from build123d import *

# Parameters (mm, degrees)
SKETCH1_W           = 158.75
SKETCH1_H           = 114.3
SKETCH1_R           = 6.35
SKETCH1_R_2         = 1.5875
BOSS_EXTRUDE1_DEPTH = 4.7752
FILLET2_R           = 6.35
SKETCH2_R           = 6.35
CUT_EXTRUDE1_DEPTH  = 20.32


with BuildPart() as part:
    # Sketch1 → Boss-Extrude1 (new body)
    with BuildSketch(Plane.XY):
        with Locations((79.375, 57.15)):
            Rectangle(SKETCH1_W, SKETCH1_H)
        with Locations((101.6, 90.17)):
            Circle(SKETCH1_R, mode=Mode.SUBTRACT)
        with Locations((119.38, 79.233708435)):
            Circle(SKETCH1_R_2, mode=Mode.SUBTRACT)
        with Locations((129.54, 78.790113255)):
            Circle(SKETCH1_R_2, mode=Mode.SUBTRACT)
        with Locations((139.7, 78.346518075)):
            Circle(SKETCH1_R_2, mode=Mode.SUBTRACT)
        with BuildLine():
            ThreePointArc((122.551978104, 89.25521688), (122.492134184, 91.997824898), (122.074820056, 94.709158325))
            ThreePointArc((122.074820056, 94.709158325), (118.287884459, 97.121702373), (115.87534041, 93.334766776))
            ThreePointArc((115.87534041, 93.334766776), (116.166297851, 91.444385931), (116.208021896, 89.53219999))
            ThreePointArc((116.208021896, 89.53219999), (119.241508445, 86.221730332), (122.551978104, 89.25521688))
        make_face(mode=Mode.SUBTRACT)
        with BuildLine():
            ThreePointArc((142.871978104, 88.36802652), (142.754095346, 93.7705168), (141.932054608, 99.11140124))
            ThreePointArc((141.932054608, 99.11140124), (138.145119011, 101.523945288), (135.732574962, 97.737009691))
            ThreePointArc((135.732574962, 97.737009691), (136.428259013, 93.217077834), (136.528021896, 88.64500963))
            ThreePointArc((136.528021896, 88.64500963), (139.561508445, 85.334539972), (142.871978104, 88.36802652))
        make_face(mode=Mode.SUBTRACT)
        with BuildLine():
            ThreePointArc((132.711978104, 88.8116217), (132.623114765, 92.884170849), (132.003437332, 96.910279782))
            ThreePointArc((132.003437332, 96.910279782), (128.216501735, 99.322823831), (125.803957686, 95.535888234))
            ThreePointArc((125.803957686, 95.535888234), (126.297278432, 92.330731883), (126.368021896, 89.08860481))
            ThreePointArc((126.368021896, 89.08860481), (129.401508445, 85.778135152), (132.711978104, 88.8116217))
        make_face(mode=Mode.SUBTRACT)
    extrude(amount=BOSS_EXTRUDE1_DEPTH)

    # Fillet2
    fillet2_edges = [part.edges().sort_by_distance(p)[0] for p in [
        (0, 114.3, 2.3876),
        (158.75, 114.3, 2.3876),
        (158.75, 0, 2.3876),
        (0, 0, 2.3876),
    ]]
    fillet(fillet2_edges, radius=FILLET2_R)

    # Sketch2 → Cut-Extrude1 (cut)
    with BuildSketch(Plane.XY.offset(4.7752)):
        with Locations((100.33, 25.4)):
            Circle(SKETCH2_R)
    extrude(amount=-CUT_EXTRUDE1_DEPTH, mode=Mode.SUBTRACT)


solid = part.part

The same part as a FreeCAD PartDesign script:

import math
import FreeCAD as App
import Part
import Sketcher
from FreeCAD import Vector
Q = App.Units.Quantity


def edges_at(feature, points):
    """Names of the edges that pass closest to the given points."""
    edges = feature.Shape.Edges
    near = lambda p: min(range(len(edges)), key=lambda i: edges[i].distToShape(Part.Vertex(*p))[0])
    return sorted({f"Edge{near(p) + 1}" for p in points})


def add_polygon(sketch, points):
    """Adds a closed chain of lines whose ends are joined by coincident constraints."""
    first, n = sketch.GeometryCount, len(points)
    for a, b in zip(points, points[1:] + points[:1]):
        sketch.addGeometry(Part.LineSegment(App.Vector(*a, 0), App.Vector(*b, 0)), False)
    for i in range(n):
        sketch.addConstraint(Sketcher.Constraint("Coincident", first + i, 2, first + (i + 1) % n, 1))

doc = App.newDocument("Part")
body = doc.addObject("PartDesign::Body", "Body")

# Sketch on XY plane
sketch1 = body.newObject("Sketcher::SketchObject", "Sketch")
sketch1.AttachmentSupport = (doc.getObject("XY_Plane"), [""])
sketch1.MapMode = "FlatFace"
add_polygon(sketch1, [(0, 114.3), (0, 0), (158.8, 0), (158.8, 114.3)])  # lines 0-3
sketch1.addGeometry(Part.Circle(Vector(119.4, 79.2, 0), Vector(0, 0, 1), 1.6), False)  # 4
sketch1.addGeometry(Part.Circle(Vector(129.5, 78.8, 0), Vector(0, 0, 1), 1.6), False)  # 5
sketch1.addGeometry(Part.Circle(Vector(139.7, 78.3, 0), Vector(0, 0, 1), 1.6), False)  # 6
sketch1.addGeometry(Part.Circle(Vector(101.6, 90.2, 0), Vector(0, 0, 1), 6.3), False)  # 7
sketch1.addGeometry(Part.ArcOfCircle(Part.Circle(Vector(101.6, 90.2, 0), Vector(0, 0, 1), 21), math.radians(-2.5), math.radians(12.5)), False)  # 8
sketch1.addGeometry(Part.ArcOfCircle(Part.Circle(Vector(119.4, 89.4, 0), Vector(0, 0, 1), 3.2), math.radians(178), math.radians(357)), False)  # 9
sketch1.addGeometry(Part.ArcOfCircle(Part.Circle(Vector(101.6, 90.2, 0), Vector(0, 0, 1), 14.6), math.radians(-2.5), math.radians(12.5)), False)  # 10
sketch1.addGeometry(Part.ArcOfCircle(Part.Circle(Vector(119, 94, 0), Vector(0, 0, 1), 3.2), math.radians(13), math.radians(192)), False)  # 11
sketch1.addGeometry(Part.ArcOfCircle(Part.Circle(Vector(101.6, 90.2, 0), Vector(0, 0, 1), 31.1), math.radians(-2.5), math.radians(12.5)), False)  # 12
sketch1.addGeometry(Part.ArcOfCircle(Part.Circle(Vector(129.5, 89, 0), Vector(0, 0, 1), 3.2), math.radians(178), math.radians(357)), False)  # 13
sketch1.addGeometry(Part.ArcOfCircle(Part.Circle(Vector(101.6, 90.2, 0), Vector(0, 0, 1), 24.8), math.radians(-2.5), math.radians(12.5)), False)  # 14
sketch1.addGeometry(Part.ArcOfCircle(Part.Circle(Vector(128.9, 96.2, 0), Vector(0, 0, 1), 3.2), math.radians(12), math.radians(192)), False)  # 15
sketch1.addGeometry(Part.ArcOfCircle(Part.Circle(Vector(101.6, 90.2, 0), Vector(0, 0, 1), 41.3), math.radians(-2.5), math.radians(12.5)), False)  # 16
sketch1.addGeometry(Part.ArcOfCircle(Part.Circle(Vector(139.7, 88.5, 0), Vector(0, 0, 1), 3.2), math.radians(178), math.radians(357)), False)  # 17
sketch1.addGeometry(Part.ArcOfCircle(Part.Circle(Vector(101.6, 90.2, 0), Vector(0, 0, 1), 35), math.radians(-2.5), math.radians(12.5)), False)  # 18
sketch1.addGeometry(Part.ArcOfCircle(Part.Circle(Vector(138.8, 98.4, 0), Vector(0, 0, 1), 3.2), math.radians(13), math.radians(192)), False)  # 19
sketch1.addConstraint([
    Sketcher.Constraint("Tangent", 8, 1, 9, 2),
    Sketcher.Constraint("Tangent", 9, 1, 10, 1),
    Sketcher.Constraint("Tangent", 10, 2, 11, 2),
    Sketcher.Constraint("Tangent", 11, 1, 8, 2),
    Sketcher.Constraint("Tangent", 12, 1, 13, 2),
    Sketcher.Constraint("Tangent", 13, 1, 14, 1),
    Sketcher.Constraint("Tangent", 14, 2, 15, 2),
    Sketcher.Constraint("Tangent", 15, 1, 12, 2),
    Sketcher.Constraint("Tangent", 16, 1, 17, 2),
    Sketcher.Constraint("Tangent", 17, 1, 18, 1),
    Sketcher.Constraint("Tangent", 18, 2, 19, 2),
    Sketcher.Constraint("Tangent", 19, 1, 16, 2),
    Sketcher.Constraint("Vertical", 0),
    Sketcher.Constraint("Horizontal", 1),
    Sketcher.Constraint("Vertical", 2),
    Sketcher.Constraint("Horizontal", 3),
    Sketcher.Constraint("Coincident", 0, 2, -1, 1),
    Sketcher.Constraint("Coincident", 8, 3, 7, 3),
    Sketcher.Constraint("Coincident", 10, 3, 7, 3),
    Sketcher.Constraint("Coincident", 12, 3, 7, 3),
    Sketcher.Constraint("Coincident", 14, 3, 7, 3),
    Sketcher.Constraint("Coincident", 16, 3, 7, 3),
    Sketcher.Constraint("Coincident", 18, 3, 7, 3),
    Sketcher.Constraint("Equal", 4, 5),
    Sketcher.Constraint("Equal", 5, 6),
    Sketcher.Constraint("Equal", 11, 13),
    Sketcher.Constraint("Equal", 15, 17),
    Sketcher.Constraint("Vertical", 4, 3, 9, 3),
    Sketcher.Constraint("Vertical", 5, 3, 13, 3),
    Sketcher.Constraint("Vertical", 6, 3, 17, 3),
    Sketcher.Constraint("Diameter", 7, Q("0.5 in")),
    Sketcher.Constraint("Diameter", 4, Q("0.125 in")),
    Sketcher.Constraint("DistanceY", 0, 2, 0, 1, Q("4.5 in")),
    Sketcher.Constraint("DistanceX", -1, 1, 7, 3, Q("4 in")),
    Sketcher.Constraint("Radius", 9, Q("0.125 in")),
    Sketcher.Constraint("DistanceX", 1, 1, 1, 2, Q("6.25 in")),
    Sketcher.Constraint("DistanceX", -1, 1, 4, 3, Q("4.7 in")),
    Sketcher.Constraint("DistanceX", -1, 1, 5, 3, Q("5.1 in")),
    Sketcher.Constraint("DistanceX", -1, 1, 6, 3, Q("5.5 in")),
    Sketcher.Constraint("DistanceY", 4, 3, 9, 3, Q("0.4 in")),
    Sketcher.Constraint("DistanceY", 5, 3, 13, 3, Q("0.4 in")),
    Sketcher.Constraint("DistanceY", 6, 3, 17, 3, Q("0.4 in")),
    Sketcher.Constraint("DistanceX", 8, 1, 12, 1, Q("0.4 in")),
    Sketcher.Constraint("DistanceY", -1, 1, 7, 3, Q("3.55 in")),
    Sketcher.Constraint("Radius", 8, 20.971939),
    Sketcher.Constraint("Radius", 16, 41.311297),
    Sketcher.Constraint("DistanceY", -1, 1, 19, 1, 99.111401),
    Sketcher.Constraint("DistanceX", 11, 1, 13, 1, 4.293202),
    Sketcher.Constraint("DistanceY", -1, 1, 14, 2, 95.535888),
])
pad1 = body.newObject("PartDesign::Pad", "Pad")
pad1.Profile = sketch1
pad1.Length = Q("0.188 in")
doc.recompute()

fillet = body.newObject("PartDesign::Fillet", "Fillet")
fillet.Base = (pad1, edges_at(pad1, [
    (0, 114.3, 2.388),
    (158.75, 114.3, 2.388),
    (158.75, 0, 2.388),
    (0, 0, 2.388),
]))
fillet.Radius = Q("0.25 in")

# Sketch on XY plane
sketch2 = body.newObject("Sketcher::SketchObject", "Sketch001")
sketch2.AttachmentSupport = (doc.getObject("XY_Plane"), [""])
sketch2.MapMode = "FlatFace"
sketch2.AttachmentOffset = App.Placement(Vector(0, 0, 0.188 * 25.4), App.Rotation())
sketch2.addGeometry(Part.Circle(Vector(100, 25, 0), Vector(0, 0, 1), 6), False)
sketch2.addConstraint([
    Sketcher.Constraint("Diameter", 0, Q("0.5 in")),
    Sketcher.Constraint("DistanceY", -1, 1, 0, 3, Q("1 in")),
    Sketcher.Constraint("DistanceX", -1, 1, 0, 3, Q("3.95 in")),
])
pocket1 = body.newObject("PartDesign::Pocket", "Pocket")
pocket1.Profile = sketch2
pocket1.Length = Q("0.8 in")

doc.recompute()
